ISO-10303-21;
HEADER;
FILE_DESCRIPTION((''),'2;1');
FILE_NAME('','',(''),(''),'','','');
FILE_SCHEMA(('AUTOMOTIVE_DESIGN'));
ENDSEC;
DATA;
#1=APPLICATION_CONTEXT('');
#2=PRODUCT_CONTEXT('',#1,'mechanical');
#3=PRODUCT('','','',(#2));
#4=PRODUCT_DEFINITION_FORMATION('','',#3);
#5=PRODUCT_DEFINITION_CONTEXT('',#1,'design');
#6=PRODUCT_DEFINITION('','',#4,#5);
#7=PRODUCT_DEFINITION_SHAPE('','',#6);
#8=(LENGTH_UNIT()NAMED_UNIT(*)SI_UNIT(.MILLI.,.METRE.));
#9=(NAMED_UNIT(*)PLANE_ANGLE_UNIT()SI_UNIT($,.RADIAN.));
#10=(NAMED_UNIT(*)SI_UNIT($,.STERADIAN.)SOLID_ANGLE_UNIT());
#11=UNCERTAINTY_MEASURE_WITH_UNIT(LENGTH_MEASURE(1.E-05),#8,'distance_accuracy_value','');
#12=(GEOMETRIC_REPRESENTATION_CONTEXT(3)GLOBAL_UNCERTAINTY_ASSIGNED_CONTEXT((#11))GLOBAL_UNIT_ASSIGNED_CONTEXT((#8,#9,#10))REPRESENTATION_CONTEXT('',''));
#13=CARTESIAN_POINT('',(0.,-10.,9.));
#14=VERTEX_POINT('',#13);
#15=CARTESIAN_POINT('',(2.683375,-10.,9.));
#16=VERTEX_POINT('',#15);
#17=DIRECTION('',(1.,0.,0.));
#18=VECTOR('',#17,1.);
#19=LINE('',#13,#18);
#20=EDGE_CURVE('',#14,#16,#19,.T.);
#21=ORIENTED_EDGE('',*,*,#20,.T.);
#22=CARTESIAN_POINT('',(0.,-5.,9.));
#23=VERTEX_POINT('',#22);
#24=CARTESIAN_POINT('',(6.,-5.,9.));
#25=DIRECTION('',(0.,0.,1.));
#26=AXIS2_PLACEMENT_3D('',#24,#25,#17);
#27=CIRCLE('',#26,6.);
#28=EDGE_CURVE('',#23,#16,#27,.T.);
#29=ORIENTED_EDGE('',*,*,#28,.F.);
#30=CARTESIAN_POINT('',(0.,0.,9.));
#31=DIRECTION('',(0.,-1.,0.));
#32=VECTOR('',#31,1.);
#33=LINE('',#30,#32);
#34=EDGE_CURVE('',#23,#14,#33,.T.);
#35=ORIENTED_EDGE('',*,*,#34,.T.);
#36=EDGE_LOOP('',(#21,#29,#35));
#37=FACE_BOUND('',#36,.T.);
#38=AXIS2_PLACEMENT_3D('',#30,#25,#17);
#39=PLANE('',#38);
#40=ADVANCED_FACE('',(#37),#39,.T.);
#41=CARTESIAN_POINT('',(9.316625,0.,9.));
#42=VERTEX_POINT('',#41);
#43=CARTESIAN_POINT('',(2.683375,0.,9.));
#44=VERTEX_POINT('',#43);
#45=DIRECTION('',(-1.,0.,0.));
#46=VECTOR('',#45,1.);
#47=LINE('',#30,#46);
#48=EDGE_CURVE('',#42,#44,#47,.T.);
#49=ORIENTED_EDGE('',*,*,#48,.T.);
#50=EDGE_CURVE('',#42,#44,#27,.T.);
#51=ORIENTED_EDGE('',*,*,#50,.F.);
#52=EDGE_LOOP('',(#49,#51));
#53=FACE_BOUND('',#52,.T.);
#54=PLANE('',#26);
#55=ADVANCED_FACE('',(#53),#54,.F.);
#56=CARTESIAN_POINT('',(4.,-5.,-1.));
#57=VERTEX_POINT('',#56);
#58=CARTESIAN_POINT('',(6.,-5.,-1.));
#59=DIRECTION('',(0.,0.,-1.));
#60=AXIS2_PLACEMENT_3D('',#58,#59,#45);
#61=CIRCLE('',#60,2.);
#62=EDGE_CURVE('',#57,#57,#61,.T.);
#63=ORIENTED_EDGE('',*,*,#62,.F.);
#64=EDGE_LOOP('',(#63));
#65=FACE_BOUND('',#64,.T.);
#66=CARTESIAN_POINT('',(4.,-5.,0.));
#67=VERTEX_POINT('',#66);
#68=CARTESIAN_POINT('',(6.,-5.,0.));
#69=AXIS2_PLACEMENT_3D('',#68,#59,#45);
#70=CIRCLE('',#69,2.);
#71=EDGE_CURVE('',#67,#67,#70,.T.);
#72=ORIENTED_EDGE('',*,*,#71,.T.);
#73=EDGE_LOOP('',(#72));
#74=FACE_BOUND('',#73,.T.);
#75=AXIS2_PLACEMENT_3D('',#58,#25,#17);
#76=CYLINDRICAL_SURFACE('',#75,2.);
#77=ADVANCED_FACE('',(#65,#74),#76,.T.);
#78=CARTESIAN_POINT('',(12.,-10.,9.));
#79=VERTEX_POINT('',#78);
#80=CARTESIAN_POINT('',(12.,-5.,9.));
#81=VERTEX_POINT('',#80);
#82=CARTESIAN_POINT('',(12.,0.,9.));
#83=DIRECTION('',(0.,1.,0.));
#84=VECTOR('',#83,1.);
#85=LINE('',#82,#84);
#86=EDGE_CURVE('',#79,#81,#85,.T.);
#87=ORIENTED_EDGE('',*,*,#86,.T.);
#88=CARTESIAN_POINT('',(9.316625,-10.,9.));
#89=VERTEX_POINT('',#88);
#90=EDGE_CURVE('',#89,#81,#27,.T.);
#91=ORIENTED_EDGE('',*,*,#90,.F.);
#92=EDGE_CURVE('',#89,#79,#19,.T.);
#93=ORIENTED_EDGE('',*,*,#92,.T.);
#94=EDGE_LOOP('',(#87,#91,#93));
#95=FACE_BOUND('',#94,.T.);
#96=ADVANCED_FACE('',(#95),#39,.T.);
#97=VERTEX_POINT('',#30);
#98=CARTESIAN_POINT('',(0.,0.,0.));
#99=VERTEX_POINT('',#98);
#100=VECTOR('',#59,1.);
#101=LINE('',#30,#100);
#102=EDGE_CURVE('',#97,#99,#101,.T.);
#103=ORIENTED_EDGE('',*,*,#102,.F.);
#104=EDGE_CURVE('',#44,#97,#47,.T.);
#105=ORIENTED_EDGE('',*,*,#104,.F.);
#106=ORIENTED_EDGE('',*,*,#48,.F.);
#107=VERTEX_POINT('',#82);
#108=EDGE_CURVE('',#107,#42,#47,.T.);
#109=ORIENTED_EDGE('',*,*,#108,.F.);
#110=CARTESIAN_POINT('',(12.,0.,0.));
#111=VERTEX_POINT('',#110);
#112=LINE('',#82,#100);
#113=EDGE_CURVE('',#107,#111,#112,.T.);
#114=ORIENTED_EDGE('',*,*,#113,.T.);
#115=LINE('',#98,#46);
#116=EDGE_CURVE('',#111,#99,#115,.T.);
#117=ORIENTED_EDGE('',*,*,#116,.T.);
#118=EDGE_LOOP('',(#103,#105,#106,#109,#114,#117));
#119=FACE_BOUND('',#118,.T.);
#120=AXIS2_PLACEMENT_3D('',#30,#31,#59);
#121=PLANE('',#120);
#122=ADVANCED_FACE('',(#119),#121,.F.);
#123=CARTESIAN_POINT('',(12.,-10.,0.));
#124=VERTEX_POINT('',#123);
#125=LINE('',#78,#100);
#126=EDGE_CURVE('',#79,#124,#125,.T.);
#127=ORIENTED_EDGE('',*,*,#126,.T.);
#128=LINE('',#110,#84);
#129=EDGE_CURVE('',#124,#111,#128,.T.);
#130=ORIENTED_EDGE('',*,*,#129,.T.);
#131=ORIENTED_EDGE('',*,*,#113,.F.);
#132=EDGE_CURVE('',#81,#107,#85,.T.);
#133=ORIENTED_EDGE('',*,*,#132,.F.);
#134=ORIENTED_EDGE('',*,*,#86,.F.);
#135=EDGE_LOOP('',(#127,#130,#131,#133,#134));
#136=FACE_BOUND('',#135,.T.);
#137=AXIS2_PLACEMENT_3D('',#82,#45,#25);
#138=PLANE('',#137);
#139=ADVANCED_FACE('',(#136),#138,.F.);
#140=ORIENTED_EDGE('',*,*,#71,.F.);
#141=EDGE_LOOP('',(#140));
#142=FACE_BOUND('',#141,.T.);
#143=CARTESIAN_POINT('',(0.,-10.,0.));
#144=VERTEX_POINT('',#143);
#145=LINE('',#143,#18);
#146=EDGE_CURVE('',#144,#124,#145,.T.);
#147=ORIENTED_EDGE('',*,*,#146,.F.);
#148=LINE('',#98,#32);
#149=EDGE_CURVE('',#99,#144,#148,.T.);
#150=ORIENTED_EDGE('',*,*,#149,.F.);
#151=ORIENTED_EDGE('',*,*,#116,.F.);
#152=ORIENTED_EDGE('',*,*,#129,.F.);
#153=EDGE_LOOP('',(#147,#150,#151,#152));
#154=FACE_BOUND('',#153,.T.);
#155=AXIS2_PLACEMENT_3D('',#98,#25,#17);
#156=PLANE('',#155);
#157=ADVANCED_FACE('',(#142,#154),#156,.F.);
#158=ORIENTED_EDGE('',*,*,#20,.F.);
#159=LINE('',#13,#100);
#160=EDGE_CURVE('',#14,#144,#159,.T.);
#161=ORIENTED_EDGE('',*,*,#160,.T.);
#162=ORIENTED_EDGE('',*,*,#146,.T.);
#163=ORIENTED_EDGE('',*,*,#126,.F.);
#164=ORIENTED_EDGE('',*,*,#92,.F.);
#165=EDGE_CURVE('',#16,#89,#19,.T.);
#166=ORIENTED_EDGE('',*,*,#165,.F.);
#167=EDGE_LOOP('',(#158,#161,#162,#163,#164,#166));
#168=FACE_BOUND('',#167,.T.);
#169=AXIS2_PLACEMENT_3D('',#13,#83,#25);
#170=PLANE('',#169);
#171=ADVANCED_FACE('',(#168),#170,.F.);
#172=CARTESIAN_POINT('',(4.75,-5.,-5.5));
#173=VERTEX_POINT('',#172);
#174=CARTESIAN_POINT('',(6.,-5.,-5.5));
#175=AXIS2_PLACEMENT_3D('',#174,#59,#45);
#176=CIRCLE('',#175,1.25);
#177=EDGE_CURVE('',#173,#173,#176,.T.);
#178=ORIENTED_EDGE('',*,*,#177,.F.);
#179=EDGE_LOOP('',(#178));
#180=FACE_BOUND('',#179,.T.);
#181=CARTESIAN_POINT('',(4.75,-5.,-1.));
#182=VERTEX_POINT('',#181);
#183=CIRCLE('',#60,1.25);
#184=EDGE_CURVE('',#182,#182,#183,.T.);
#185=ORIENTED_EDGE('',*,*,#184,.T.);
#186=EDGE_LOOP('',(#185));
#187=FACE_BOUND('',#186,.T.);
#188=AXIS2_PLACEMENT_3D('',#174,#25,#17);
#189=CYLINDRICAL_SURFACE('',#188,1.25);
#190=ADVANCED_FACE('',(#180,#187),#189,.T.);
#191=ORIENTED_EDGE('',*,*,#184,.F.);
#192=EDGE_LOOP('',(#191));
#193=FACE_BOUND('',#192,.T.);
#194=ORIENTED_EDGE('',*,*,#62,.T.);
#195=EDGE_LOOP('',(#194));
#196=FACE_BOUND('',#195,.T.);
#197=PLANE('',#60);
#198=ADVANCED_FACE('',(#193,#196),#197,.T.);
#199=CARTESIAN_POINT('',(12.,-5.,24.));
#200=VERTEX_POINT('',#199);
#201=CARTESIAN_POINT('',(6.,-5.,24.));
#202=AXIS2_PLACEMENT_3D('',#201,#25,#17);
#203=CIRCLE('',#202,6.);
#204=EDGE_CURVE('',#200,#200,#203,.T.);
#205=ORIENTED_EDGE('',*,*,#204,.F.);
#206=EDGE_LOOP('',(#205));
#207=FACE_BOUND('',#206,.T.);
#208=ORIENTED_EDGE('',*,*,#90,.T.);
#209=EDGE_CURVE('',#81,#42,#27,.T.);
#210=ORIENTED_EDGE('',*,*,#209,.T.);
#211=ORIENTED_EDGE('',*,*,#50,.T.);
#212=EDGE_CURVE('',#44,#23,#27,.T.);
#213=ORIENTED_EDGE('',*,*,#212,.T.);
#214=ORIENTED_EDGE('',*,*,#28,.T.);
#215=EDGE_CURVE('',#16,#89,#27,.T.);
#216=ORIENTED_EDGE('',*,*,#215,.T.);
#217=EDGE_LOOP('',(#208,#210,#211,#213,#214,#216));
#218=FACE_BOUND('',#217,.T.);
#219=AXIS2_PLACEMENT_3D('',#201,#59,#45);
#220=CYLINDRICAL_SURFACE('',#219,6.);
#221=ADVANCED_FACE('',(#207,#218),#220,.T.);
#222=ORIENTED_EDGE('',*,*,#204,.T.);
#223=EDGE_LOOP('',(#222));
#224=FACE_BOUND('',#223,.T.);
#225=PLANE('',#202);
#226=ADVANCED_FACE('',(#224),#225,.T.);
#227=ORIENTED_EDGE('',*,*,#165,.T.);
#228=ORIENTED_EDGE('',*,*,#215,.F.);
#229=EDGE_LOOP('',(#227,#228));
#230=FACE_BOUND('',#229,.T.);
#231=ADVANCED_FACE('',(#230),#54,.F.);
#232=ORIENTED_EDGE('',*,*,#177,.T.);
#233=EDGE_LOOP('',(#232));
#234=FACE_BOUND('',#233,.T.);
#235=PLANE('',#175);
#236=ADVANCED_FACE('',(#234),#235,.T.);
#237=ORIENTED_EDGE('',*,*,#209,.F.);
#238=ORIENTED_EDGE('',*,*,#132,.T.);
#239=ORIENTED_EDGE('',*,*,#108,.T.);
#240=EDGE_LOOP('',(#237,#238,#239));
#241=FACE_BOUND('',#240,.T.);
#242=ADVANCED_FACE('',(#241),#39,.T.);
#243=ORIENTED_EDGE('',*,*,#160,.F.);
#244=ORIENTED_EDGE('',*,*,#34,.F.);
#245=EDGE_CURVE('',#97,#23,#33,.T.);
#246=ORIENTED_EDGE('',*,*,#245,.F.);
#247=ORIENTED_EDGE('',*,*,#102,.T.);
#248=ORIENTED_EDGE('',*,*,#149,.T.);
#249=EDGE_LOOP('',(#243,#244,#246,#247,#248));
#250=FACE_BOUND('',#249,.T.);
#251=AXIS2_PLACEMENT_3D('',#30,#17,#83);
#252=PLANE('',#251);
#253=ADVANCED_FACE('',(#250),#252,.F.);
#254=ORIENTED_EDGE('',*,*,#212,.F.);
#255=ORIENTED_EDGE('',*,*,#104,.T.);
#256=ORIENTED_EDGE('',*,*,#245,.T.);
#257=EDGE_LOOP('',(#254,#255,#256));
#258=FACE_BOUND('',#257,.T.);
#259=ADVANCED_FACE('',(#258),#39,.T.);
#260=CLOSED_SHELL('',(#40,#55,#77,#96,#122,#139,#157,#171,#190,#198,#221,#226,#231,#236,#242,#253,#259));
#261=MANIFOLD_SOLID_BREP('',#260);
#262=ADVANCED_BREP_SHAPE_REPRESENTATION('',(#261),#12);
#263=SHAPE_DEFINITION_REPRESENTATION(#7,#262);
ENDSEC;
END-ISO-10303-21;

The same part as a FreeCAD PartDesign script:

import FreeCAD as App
import Part
import Sketcher
from FreeCAD import Vector

doc = App.newDocument("Part")
params = doc.addObject("Spreadsheet::Sheet", "Params")
for row, (alias, value) in enumerate([
    ("sketch1_width", "12 mm"),
    ("sketch1_height", "10 mm"),
    ("pad1_length", "9 mm"),
    ("sketch2_diameter", "12 mm"),
    ("pad2_length", "15 mm"),
    ("sketch3_diameter", "4 mm"),
    ("pad3_length", "1 mm"),
    ("sketch4_diameter", "2.5 mm"),
    ("pad4_length", "4.5 mm"),
], start=1):
    params.set(f"A{row}", alias)
    params.set(f"B{row}", "=" + value)
    params.setAlias(f"B{row}", alias)

body = doc.addObject("PartDesign::Body", "Body")

# Sketch on XY plane
sketch1 = body.newObject("Sketcher::SketchObject", "Sketch")
sketch1.AttachmentSupport = (doc.getObject("XY_Plane"), [""])
sketch1.MapMode = "FlatFace"
sketch1.addGeometry([
    Part.LineSegment(Vector(0, 0, 0), Vector(0, -10, 0)),
    Part.LineSegment(Vector(0, -10, 0), Vector(12, -10, 0)),
    Part.LineSegment(Vector(12, -10, 0), Vector(12, 0, 0)),
    Part.LineSegment(Vector(12, 0, 0), Vector(0, 0, 0)),
], False)
sketch1.addConstraint([
    Sketcher.Constraint("Coincident", 0, 2, 1, 1),
    Sketcher.Constraint("Coincident", 1, 2, 2, 1),
    Sketcher.Constraint("Coincident", 2, 2, 3, 1),
    Sketcher.Constraint("Coincident", 3, 2, 0, 1),
    Sketcher.Constraint("Vertical", 0),
    Sketcher.Constraint("Horizontal", 1),
    Sketcher.Constraint("Vertical", 2),
    Sketcher.Constraint("Horizontal", 3),
    Sketcher.Constraint("Coincident", 3, 2, -1, 1),
    Sketcher.Constraint("DistanceX", 1, 1, 1, 2, 12.0),
    Sketcher.Constraint("DistanceY", 0, 2, 0, 1, 10.0),
])
sketch1.setExpression("Constraints[9]", "Params.sketch1_width")
sketch1.setExpression("Constraints[10]", "Params.sketch1_height")
pad1 = body.newObject("PartDesign::Pad", "Pad")
pad1.Profile = sketch1
pad1.setExpression("Length", "Params.pad1_length")

# Sketch on XY plane
sketch2 = body.newObject("Sketcher::SketchObject", "Sketch001")
sketch2.AttachmentSupport = (doc.getObject("XY_Plane"), [""])
sketch2.MapMode = "FlatFace"
sketch2.AttachmentOffset = App.Placement(Vector(0, 0, 9), App.Rotation())
sketch2.addGeometry(Part.Circle(Vector(6, -5, 0), Vector(0, 0, 1), 6), False)
sketch2.addConstraint([
    Sketcher.Constraint("Diameter", 0, 12.0),
    Sketcher.Constraint("DistanceX", -1, 1, 0, 3, 6.0),
    Sketcher.Constraint("DistanceY", 0, 3, -1, 1, 5.0),
])
sketch2.setExpression("Constraints[0]", "Params.sketch2_diameter")
pad2 = body.newObject("PartDesign::Pad", "Pad001")
pad2.Profile = sketch2
pad2.setExpression("Length", "Params.pad2_length")

# Sketch on XY plane
sketch3 = body.newObject("Sketcher::SketchObject", "Sketch002")
sketch3.AttachmentSupport = (doc.getObject("XY_Plane"), [""])
sketch3.MapMode = "FlatFace"
sketch3.addGeometry(Part.Circle(Vector(6, -5, 0), Vector(0, 0, 1), 2), False)
sketch3.addConstraint([
    Sketcher.Constraint("Diameter", 0, 4.0),
    Sketcher.Constraint("DistanceX", -1, 1, 0, 3, 6.0),
    Sketcher.Constraint("DistanceY", 0, 3, -1, 1, 5.0),
])
sketch3.setExpression("Constraints[0]", "Params.sketch3_diameter")
pad3 = body.newObject("PartDesign::Pad", "Pad002")
pad3.Profile = sketch3
pad3.setExpression("Length", "Params.pad3_length")
pad3.Reversed = True

# Sketch on XY plane
sketch4 = body.newObject("Sketcher::SketchObject", "Sketch003")
sketch4.AttachmentSupport = (doc.getObject("XY_Plane"), [""])
sketch4.MapMode = "FlatFace"
sketch4.AttachmentOffset = App.Placement(Vector(0, 0, -1), App.Rotation())
sketch4.addGeometry(Part.Circle(Vector(6, -5, 0), Vector(0, 0, 1), 1.25), False)
sketch4.addConstraint([
    Sketcher.Constraint("Diameter", 0, 2.5),
    Sketcher.Constraint("DistanceX", -1, 1, 0, 3, 6.0),
    Sketcher.Constraint("DistanceY", 0, 3, -1, 1, 5.0),
])
sketch4.setExpression("Constraints[0]", "Params.sketch4_diameter")
pad4 = body.newObject("PartDesign::Pad", "Pad003")
pad4.Profile = sketch4
pad4.setExpression("Length", "Params.pad4_length")
pad4.Reversed = True

doc.recompute()
